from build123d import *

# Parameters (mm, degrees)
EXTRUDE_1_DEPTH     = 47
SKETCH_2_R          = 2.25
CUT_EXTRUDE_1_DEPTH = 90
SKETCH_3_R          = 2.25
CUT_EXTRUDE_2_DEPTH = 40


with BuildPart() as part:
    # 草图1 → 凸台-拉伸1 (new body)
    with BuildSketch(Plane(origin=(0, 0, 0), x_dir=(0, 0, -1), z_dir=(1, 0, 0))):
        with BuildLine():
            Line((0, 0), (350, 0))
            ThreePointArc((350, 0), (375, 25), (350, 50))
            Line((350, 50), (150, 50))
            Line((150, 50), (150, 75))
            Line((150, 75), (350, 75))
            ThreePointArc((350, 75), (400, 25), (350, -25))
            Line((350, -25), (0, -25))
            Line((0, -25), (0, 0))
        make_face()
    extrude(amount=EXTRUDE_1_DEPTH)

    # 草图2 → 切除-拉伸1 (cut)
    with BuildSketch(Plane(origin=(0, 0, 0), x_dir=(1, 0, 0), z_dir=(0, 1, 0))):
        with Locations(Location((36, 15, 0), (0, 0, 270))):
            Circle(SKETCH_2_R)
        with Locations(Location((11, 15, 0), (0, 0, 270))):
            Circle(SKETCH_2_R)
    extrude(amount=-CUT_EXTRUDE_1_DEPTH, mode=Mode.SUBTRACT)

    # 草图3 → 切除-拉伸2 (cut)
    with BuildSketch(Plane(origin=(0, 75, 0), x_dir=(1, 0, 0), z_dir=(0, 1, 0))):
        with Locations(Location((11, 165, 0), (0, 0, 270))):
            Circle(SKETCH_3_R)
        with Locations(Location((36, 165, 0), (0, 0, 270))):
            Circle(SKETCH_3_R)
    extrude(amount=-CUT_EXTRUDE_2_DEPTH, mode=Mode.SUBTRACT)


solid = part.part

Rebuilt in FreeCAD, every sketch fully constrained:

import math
import FreeCAD as App
import Part
import Sketcher

V = App.Vector
Q = App.Units.Quantity

doc = App.newDocument("Part")
params = doc.addObject("Spreadsheet::Sheet", "Params")
for row, (alias, value) in enumerate([
    ("sketch1_radius", "50 mm"),
    ("sketch1_radius2", "25 mm"),
    ("sketch1_height", "350 mm"),
    ("sketch1_height2", "200 mm"),
    ("pad1_length", "47 mm"),
    ("sketch2_diameter", "4.5 mm"),
    ("pocket1_length", "90 mm"),
    ("sketch3_diameter", "4.5 mm"),
    ("pocket2_length", "40 mm"),
], start=1):
    params.set(f"A{row}", alias)
    params.set(f"B{row}", "=" + value)
    params.setAlias(f"B{row}", alias)

body = doc.addObject("PartDesign::Body", "Body")

# Sketch on YZ plane
sketch1 = doc.addObject("Sketcher::SketchObject", "Sketch")
body.addObject(sketch1)
sketch1.AttachmentSupport = (doc.YZ_Plane, [""])
sketch1.MapMode = "FlatFace"
sketch1.addGeometry(Part.LineSegment(V(0, -350, 0), V(0, 0, 0)), False)
sketch1.addGeometry(Part.LineSegment(V(0, 0, 0), V(-25, 0, 0)), False)
sketch1.addGeometry(Part.LineSegment(V(-25, 0, 0), V(-25, -350, 0)), False)
sketch1.addGeometry(Part.ArcOfCircle(Part.Circle(V(25, -350, 0), V(0, 0, 1), 50), math.radians(180), math.radians(360)), False)
sketch1.addGeometry(Part.LineSegment(V(75, -350, 0), V(75, -150, 0)), False)
sketch1.addGeometry(Part.LineSegment(V(75, -150, 0), V(50, -150, 0)), False)
sketch1.addGeometry(Part.LineSegment(V(50, -150, 0), V(50, -350, 0)), False)
sketch1.addGeometry(Part.ArcOfCircle(Part.Circle(V(25, -350, 0), V(0, 0, 1), 25), math.radians(180), math.radians(360)), False)
sketch1.addConstraint(Sketcher.Constraint("Coincident", 0, 2, 1, 1))
sketch1.addConstraint(Sketcher.Constraint("Coincident", 1, 2, 2, 1))
sketch1.addConstraint(Sketcher.Constraint("Tangent", 2, 2, 3, 1))
sketch1.addConstraint(Sketcher.Constraint("Tangent", 3, 2, 4, 1))
sketch1.addConstraint(Sketcher.Constraint("Coincident", 4, 2, 5, 1))
sketch1.addConstraint(Sketcher.Constraint("Coincident", 5, 2, 6, 1))
sketch1.addConstraint(Sketcher.Constraint("Tangent", 6, 2, 7, 2))
sketch1.addConstraint(Sketcher.Constraint("Tangent", 7, 1, 0, 1))
sketch1.addConstraint(Sketcher.Constraint("Vertical", 0))
sketch1.addConstraint(Sketcher.Constraint("Horizontal", 1))
sketch1.addConstraint(Sketcher.Constraint("Vertical", 2))
sketch1.addConstraint(Sketcher.Constraint("Vertical", 4))
sketch1.addConstraint(Sketcher.Constraint("Horizontal", 5))
sketch1.addConstraint(Sketcher.Constraint("Vertical", 6))
sketch1.addConstraint(Sketcher.Constraint("Coincident", 0, 2, -1, 1))
sketch1.addConstraint(Sketcher.Constraint("Coincident", 7, 3, 3, 3))
sketch1.addConstraint(Sketcher.Constraint("Radius", 3, Q("50 mm")))
sketch1.addConstraint(Sketcher.Constraint("Radius", 7, Q("25 mm")))
sketch1.addConstraint(Sketcher.Constraint("DistanceY", 0, 1, 0, 2, Q("350 mm")))
sketch1.addConstraint(Sketcher.Constraint("DistanceY", 4, 1, 4, 2, Q("200 mm")))
sketch1.setExpression("Constraints[16]", "Params.sketch1_radius")
sketch1.setExpression("Constraints[17]", "Params.sketch1_radius2")
sketch1.setExpression("Constraints[18]", "Params.sketch1_height")
sketch1.setExpression("Constraints[19]", "Params.sketch1_height2")
pad1 = doc.addObject("PartDesign::Pad", "Pad")
body.addObject(pad1)
pad1.Profile = sketch1
pad1.setExpression("Length", "Params.pad1_length")

# Sketch on XZ plane
sketch2 = doc.addObject("Sketcher::SketchObject", "Sketch001")
body.addObject(sketch2)
sketch2.AttachmentSupport = (doc.XZ_Plane, [""])
sketch2.MapMode = "FlatFace"
sketch2.addGeometry(Part.Circle(V(36, -15, 0), V(0, 0, 1), 2.2), False)
sketch2.addGeometry(Part.Circle(V(11, -15, 0), V(0, 0, 1), 2.2), False)
sketch2.addConstraint(Sketcher.Constraint("Equal", 0, 1))
sketch2.addConstraint(Sketcher.Constraint("Horizontal", 0, 3, 1, 3))
sketch2.addConstraint(Sketcher.Constraint("Diameter", 0, Q("4.5 mm")))
sketch2.addConstraint(Sketcher.Constraint("DistanceX", -1, 1, 0, 3, Q("36 mm")))
sketch2.addConstraint(Sketcher.Constraint("DistanceY", 0, 3, -1, 1, Q("15 mm")))
sketch2.addConstraint(Sketcher.Constraint("DistanceX", -1, 1, 1, 3, Q("11 mm")))
sketch2.setExpression("Constraints[2]", "Params.sketch2_diameter")
pocket1 = doc.addObject("PartDesign::Pocket", "Pocket")
body.addObject(pocket1)
pocket1.Profile = sketch2
pocket1.setExpression("Length", "Params.pocket1_length")
pocket1.Reversed = True

# Sketch on XZ plane
sketch3 = doc.addObject("Sketcher::SketchObject", "Sketch002")
body.addObject(sketch3)
sketch3.AttachmentSupport = (doc.XZ_Plane, [""])
sketch3.MapMode = "FlatFace"
sketch3.AttachmentOffset = App.Placement(V(0, 0, -75), App.Rotation())
sketch3.addGeometry(Part.Circle(V(11, -165, 0), V(0, 0, 1), 2.2), False)
sketch3.addGeometry(Part.Circle(V(36, -165, 0), V(0, 0, 1), 2.2), False)
sketch3.addConstraint(Sketcher.Constraint("Equal", 0, 1))
sketch3.addConstraint(Sketcher.Constraint("Horizontal", 0, 3, 1, 3))
sketch3.addConstraint(Sketcher.Constraint("Diameter", 0, Q("4.5 mm")))
sketch3.addConstraint(Sketcher.Constraint("DistanceX", -1, 1, 0, 3, Q("11 mm")))
sketch3.addConstraint(Sketcher.Constraint("DistanceY", 0, 3, -1, 1, Q("165 mm")))
sketch3.addConstraint(Sketcher.Constraint("DistanceX", -1, 1, 1, 3, Q("36 mm")))
sketch3.setExpression("Constraints[2]", "Params.sketch3_diameter")
pocket2 = doc.addObject("PartDesign::Pocket", "Pocket001")
body.addObject(pocket2)
pocket2.Profile = sketch3
pocket2.setExpression("Length", "Params.pocket2_length")
pocket2.Reversed = True

doc.recompute()
